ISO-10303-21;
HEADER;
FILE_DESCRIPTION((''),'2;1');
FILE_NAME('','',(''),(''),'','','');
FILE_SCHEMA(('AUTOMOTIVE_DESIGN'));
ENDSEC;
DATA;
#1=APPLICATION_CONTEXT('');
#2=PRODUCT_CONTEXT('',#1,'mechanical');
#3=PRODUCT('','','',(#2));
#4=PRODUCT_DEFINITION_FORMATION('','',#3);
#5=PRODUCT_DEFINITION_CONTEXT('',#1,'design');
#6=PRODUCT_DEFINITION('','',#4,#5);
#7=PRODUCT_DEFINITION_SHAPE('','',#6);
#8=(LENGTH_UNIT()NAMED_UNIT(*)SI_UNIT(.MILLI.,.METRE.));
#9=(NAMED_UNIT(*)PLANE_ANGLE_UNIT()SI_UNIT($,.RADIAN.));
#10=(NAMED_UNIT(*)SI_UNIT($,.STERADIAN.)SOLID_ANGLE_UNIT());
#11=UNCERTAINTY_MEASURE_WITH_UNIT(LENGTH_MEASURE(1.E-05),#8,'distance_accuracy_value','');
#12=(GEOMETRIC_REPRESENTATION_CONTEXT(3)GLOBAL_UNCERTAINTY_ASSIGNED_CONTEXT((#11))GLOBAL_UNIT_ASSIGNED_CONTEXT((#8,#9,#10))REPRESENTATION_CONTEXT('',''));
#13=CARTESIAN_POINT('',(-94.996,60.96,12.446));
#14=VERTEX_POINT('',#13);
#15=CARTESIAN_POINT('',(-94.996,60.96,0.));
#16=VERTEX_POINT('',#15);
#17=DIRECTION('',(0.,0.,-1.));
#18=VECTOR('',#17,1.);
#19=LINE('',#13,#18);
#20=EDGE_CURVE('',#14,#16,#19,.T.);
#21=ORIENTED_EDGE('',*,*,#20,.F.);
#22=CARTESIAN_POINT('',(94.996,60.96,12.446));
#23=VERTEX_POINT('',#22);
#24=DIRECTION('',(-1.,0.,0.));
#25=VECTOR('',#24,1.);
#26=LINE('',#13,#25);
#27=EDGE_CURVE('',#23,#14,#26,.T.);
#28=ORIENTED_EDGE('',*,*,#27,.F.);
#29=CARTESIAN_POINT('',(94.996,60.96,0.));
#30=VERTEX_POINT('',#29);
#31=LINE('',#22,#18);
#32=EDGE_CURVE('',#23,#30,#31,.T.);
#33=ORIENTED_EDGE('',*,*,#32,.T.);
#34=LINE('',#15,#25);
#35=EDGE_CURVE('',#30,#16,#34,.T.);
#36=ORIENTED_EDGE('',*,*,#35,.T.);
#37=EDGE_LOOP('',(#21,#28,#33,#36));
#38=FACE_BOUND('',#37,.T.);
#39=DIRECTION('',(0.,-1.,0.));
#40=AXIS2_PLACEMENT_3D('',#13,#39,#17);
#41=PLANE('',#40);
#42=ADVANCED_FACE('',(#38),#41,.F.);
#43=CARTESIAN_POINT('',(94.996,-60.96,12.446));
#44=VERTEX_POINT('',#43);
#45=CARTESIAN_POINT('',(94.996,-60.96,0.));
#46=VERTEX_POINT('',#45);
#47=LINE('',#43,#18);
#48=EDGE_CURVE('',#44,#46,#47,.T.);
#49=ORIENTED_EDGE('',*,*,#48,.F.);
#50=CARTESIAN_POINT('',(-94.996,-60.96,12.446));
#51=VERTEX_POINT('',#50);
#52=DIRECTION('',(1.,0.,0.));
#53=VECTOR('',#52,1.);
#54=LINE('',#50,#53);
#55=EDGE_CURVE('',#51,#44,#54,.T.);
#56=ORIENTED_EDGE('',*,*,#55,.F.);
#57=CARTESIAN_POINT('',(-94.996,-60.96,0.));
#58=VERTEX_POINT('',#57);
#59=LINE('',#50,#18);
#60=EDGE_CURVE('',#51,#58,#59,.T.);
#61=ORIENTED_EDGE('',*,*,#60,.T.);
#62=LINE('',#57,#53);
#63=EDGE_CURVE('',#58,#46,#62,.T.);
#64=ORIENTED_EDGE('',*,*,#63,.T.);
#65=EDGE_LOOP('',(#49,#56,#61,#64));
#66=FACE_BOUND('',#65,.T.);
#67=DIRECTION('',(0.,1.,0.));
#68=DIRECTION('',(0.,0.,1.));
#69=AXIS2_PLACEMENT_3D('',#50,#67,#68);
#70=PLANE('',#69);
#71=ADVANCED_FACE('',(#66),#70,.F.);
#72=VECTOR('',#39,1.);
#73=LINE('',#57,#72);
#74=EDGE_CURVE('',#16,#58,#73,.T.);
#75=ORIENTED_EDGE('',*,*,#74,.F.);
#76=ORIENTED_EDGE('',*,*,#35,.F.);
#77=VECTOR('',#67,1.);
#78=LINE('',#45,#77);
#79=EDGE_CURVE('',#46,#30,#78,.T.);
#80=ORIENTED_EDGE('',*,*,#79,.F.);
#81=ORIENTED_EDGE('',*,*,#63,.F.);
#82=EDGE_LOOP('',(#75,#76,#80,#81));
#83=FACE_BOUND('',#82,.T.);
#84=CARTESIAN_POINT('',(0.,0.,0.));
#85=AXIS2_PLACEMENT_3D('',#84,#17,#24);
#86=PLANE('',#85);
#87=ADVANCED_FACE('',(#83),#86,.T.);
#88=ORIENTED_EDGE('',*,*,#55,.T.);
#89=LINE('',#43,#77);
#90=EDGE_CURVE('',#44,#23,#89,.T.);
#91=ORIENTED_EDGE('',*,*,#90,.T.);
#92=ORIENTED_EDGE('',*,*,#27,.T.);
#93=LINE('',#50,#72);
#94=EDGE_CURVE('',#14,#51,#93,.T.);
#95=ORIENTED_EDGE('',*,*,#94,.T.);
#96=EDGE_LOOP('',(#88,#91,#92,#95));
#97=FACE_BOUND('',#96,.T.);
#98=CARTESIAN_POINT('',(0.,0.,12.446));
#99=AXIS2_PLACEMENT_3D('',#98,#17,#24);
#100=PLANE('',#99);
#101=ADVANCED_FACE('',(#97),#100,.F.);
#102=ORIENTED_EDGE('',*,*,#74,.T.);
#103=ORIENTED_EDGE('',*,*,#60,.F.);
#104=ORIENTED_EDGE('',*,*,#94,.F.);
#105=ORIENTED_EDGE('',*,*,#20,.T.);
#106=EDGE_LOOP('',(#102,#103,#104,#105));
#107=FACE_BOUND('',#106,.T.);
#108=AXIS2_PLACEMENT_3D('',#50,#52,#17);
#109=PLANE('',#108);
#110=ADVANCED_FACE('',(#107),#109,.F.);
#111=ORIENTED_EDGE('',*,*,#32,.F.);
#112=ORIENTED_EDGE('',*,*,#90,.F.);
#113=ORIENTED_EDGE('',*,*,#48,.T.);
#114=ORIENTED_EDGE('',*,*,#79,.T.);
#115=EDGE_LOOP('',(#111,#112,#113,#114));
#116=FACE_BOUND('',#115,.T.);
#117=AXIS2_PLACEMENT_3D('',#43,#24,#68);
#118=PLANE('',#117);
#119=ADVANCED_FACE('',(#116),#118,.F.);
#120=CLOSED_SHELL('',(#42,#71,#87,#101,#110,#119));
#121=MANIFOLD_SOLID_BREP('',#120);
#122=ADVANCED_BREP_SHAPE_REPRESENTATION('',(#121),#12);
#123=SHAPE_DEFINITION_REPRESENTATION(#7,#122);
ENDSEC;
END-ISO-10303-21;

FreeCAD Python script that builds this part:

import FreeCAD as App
import Part
import Sketcher
from FreeCAD import Vector
Q = App.Units.Quantity


def add_polygon(sketch, points):
    """Adds a closed chain of lines whose ends are joined by coincident constraints."""
    first, n = sketch.GeometryCount, len(points)
    for a, b in zip(points, points[1:] + points[:1]):
        sketch.addGeometry(Part.LineSegment(App.Vector(*a, 0), App.Vector(*b, 0)), False)
    for i in range(n):
        sketch.addConstraint(Sketcher.Constraint("Coincident", first + i, 2, first + (i + 1) % n, 1))

doc = App.newDocument("Part")
body = doc.addObject("PartDesign::Body", "Body")

sketch1 = body.newObject("Sketcher::SketchObject", "Sketch")
sketch1.AttachmentSupport = (doc.getObject("XY_Plane"), [""])
sketch1.MapMode = "FlatFace"
add_polygon(sketch1, [(-95, 61), (-95, -61), (95, -61), (95, 61)])
sketch1.addConstraint([
    Sketcher.Constraint("Vertical", 0),
    Sketcher.Constraint("Horizontal", 1),
    Sketcher.Constraint("Vertical", 2),
    Sketcher.Constraint("Horizontal", 3),
    Sketcher.Constraint("Symmetric", 0, 2, 2, 2, -1, 1),
    Sketcher.Constraint("DistanceY", 0, 2, 0, 1, Q("4.8 in")),
    Sketcher.Constraint("DistanceX", 1, 1, 1, 2, Q("7.48 in")),
])
pad1 = body.newObject("PartDesign::Pad", "Pad")
pad1.Profile = sketch1
pad1.Length = Q("0.49 in")

doc.recompute()
